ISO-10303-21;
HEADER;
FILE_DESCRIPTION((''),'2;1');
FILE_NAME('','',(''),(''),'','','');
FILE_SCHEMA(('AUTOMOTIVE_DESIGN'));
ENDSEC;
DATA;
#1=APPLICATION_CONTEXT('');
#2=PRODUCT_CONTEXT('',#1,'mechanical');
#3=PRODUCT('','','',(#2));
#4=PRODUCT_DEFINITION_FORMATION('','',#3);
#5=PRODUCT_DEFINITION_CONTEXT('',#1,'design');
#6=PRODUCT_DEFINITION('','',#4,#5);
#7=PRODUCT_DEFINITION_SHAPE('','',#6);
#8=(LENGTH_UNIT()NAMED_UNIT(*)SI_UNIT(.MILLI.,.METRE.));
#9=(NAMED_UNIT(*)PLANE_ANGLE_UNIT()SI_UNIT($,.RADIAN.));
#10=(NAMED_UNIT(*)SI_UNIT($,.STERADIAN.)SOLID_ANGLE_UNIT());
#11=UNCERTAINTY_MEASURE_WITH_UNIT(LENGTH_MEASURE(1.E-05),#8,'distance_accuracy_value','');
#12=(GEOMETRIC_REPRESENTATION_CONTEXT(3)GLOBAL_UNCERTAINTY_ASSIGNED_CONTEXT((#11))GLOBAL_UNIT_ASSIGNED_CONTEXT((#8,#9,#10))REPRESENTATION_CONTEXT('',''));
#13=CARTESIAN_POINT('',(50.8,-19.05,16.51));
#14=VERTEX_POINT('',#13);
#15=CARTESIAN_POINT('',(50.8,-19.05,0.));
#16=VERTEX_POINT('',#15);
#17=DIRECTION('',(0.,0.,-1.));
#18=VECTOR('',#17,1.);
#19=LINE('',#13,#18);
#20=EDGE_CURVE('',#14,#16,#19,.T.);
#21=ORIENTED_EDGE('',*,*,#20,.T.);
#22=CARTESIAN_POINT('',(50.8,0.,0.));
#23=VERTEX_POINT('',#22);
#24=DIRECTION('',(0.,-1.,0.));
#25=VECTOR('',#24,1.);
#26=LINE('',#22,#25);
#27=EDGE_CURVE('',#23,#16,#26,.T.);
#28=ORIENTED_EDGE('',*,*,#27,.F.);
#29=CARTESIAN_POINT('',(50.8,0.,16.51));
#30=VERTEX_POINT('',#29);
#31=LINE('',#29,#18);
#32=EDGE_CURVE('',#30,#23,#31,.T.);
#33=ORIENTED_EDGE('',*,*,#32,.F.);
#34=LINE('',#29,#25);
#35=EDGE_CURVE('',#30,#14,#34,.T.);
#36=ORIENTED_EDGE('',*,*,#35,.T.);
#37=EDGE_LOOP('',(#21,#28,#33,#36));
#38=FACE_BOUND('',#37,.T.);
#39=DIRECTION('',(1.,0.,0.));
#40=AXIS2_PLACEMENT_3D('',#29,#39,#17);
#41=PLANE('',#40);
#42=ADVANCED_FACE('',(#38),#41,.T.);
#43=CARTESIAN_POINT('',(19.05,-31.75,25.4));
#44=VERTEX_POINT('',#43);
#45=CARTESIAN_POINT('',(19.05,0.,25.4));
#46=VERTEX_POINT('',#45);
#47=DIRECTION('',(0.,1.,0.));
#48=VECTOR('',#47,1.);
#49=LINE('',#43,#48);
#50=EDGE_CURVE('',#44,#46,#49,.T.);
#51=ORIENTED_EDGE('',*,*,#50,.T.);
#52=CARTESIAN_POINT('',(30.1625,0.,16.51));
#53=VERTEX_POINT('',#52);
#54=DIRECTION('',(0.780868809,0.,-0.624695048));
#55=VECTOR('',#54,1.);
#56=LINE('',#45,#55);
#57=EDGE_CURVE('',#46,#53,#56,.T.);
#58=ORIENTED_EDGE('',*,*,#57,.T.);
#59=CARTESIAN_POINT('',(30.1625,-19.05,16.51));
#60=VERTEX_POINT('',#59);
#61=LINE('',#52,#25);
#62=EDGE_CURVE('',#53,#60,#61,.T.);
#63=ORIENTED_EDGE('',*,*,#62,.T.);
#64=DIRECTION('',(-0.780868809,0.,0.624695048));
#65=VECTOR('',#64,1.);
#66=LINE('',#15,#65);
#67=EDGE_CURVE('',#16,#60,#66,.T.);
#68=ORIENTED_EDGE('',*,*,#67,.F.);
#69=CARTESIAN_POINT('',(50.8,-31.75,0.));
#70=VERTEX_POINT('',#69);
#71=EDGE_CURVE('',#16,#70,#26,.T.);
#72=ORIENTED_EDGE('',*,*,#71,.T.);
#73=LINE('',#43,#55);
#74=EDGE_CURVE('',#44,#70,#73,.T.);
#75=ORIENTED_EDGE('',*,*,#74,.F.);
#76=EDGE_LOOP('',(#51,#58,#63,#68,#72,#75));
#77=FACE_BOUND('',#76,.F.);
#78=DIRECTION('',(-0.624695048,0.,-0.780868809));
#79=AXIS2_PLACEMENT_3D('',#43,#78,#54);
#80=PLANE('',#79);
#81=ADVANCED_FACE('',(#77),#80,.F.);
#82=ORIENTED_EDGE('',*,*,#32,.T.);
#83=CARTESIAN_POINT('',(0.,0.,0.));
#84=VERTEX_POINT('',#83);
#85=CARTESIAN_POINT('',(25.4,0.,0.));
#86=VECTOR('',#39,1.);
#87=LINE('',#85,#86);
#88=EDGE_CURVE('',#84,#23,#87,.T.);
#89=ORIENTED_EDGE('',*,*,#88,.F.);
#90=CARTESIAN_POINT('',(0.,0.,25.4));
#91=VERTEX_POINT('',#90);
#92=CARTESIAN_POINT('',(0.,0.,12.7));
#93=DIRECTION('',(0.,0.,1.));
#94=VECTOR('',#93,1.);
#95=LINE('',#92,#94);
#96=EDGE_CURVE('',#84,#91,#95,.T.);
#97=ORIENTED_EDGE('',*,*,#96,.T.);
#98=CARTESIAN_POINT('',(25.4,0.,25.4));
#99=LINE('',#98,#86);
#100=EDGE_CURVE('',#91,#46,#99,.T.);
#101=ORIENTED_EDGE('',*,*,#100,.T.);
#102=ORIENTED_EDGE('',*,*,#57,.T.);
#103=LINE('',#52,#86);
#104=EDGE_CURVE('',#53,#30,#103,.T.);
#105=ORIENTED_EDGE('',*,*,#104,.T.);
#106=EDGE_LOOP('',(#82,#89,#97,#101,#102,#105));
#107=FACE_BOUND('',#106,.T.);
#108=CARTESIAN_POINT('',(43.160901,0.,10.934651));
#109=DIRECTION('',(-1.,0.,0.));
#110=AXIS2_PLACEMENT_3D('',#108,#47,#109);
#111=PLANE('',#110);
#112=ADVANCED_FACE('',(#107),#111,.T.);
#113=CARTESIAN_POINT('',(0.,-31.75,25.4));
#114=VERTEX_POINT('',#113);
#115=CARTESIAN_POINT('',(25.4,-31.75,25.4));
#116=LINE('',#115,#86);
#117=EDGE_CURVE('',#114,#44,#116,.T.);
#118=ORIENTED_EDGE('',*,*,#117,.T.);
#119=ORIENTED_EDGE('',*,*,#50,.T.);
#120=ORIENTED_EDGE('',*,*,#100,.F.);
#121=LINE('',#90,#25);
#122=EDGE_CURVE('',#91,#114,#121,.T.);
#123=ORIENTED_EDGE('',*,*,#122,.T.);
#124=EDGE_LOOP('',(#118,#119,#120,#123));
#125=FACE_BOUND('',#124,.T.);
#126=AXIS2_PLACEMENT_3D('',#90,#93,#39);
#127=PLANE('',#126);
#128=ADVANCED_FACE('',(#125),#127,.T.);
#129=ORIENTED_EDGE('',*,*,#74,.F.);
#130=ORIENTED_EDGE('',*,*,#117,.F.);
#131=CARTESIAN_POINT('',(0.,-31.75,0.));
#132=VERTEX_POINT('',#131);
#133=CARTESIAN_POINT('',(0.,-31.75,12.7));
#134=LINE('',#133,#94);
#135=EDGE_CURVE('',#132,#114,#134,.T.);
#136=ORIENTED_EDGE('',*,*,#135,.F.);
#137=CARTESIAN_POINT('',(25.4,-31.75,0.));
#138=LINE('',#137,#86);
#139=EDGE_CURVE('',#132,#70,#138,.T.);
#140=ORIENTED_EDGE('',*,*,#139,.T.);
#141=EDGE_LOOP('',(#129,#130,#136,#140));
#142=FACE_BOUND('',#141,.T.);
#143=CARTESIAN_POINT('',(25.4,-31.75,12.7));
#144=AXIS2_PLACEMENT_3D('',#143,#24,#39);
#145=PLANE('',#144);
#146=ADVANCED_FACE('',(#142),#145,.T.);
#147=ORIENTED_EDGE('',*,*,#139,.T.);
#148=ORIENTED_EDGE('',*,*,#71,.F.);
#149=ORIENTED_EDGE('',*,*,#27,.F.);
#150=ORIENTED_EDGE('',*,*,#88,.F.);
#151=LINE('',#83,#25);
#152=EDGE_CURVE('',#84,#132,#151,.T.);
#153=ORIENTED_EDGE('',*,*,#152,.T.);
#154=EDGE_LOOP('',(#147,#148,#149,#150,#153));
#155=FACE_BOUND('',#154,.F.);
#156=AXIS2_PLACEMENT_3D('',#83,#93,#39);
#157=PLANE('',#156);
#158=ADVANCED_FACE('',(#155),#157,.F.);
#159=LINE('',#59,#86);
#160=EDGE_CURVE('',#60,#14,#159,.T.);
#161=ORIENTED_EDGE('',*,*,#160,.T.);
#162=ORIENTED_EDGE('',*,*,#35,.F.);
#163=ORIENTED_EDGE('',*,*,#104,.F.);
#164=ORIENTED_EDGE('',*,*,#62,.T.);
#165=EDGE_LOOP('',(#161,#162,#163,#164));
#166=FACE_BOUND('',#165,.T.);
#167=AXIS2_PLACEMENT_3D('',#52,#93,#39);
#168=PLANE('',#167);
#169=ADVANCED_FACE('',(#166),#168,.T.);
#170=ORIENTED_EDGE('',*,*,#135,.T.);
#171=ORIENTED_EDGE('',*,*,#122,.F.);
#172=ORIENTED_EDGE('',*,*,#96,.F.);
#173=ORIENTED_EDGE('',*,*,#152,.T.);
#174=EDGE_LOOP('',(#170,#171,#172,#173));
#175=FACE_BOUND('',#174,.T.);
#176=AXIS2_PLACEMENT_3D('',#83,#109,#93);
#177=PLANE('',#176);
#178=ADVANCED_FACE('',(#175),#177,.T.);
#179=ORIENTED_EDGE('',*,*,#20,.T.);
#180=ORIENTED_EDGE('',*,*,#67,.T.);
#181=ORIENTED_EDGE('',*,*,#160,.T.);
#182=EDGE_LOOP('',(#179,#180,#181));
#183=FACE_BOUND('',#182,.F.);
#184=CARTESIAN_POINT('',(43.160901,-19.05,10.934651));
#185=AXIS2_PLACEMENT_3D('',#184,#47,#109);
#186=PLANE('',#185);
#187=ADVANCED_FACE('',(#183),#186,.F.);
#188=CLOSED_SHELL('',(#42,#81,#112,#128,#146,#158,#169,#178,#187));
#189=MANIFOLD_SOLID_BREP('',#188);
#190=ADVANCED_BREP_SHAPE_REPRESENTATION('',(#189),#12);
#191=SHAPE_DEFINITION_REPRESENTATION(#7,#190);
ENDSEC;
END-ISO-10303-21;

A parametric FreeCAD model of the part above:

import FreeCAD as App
import Part
import Sketcher
from FreeCAD import Vector
Q = App.Units.Quantity

doc = App.newDocument("Part")
body = doc.addObject("PartDesign::Body", "Body")

sketch1 = body.newObject("Sketcher::SketchObject", "Sketch")
sketch1.AttachmentSupport = (doc.getObject("XZ_Plane"), [""])
sketch1.MapMode = "FlatFace"
sketch1.addGeometry([
    Part.LineSegment(Vector(0, 25.4, 0), Vector(0, 0, 0)),
    Part.LineSegment(Vector(0, 0, 0), Vector(50.8, 0, 0)),
    Part.LineSegment(Vector(50.8, 0, 0), Vector(50.8, 25.4, 0)),
    Part.LineSegment(Vector(50.8, 25.4, 0), Vector(0, 25.4, 0)),
], False)
sketch1.addConstraint([
    Sketcher.Constraint("Coincident", 0, 2, 1, 1),
    Sketcher.Constraint("Coincident", 1, 2, 2, 1),
    Sketcher.Constraint("Coincident", 2, 2, 3, 1),
    Sketcher.Constraint("Coincident", 3, 2, 0, 1),
    Sketcher.Constraint("Vertical", 0),
    Sketcher.Constraint("Horizontal", 1),
    Sketcher.Constraint("Vertical", 2),
    Sketcher.Constraint("Horizontal", 3),
    Sketcher.Constraint("Coincident", 0, 2, -1, 1),
    Sketcher.Constraint("DistanceX", 1, 1, 1, 2, Q("2 in")),
    Sketcher.Constraint("DistanceY", 0, 2, 0, 1, Q("1 in")),
])
pad1 = body.newObject("PartDesign::Pad", "Pad")
pad1.Profile = sketch1
pad1.Length = Q("1.25 in")

sketch2 = body.newObject("Sketcher::SketchObject", "Sketch001")
sketch2.AttachmentSupport = (doc.getObject("XZ_Plane"), [""])
sketch2.MapMode = "FlatFace"
sketch2.AttachmentOffset = App.Placement(Vector(0, 0, 1.25 * 25.4), App.Rotation())
sketch2.addGeometry([
    Part.LineSegment(Vector(50.8, 25.4, 0), Vector(19.05, 25.4, 0)),
    Part.LineSegment(Vector(19.05, 25.4, 0), Vector(50.8, 0, 0)),
    Part.LineSegment(Vector(50.8, 0, 0), Vector(50.8, 25.4, 0)),
], False)
sketch2.addConstraint([
    Sketcher.Constraint("Coincident", 0, 2, 1, 1),
    Sketcher.Constraint("Coincident", 1, 2, 2, 1),
    Sketcher.Constraint("Coincident", 2, 2, 0, 1),
    Sketcher.Constraint("Horizontal", 0),
    Sketcher.Constraint("Vertical", 2),
    Sketcher.Constraint("PointOnObject", 1, 2, -1),
    Sketcher.Constraint("DistanceY", 2, 1, 2, 2, Q("1 in")),
    Sketcher.Constraint("DistanceX", -1, 1, 1, 2, Q("2 in")),
    Sketcher.Constraint("DistanceX", 0, 2, 0, 1, Q("1.25 in")),
])
pocket1 = body.newObject("PartDesign::Pocket", "Pocket")
pocket1.Profile = sketch2
pocket1.Length = Q("1.25 in")

sketch3 = body.newObject("Sketcher::SketchObject", "Sketch002")
sketch3.AttachmentSupport = (doc.getObject("XZ_Plane"), [""])
sketch3.MapMode = "FlatFace"
sketch3.addGeometry([
    Part.LineSegment(Vector(50.8, 16.51, 0), Vector(50.8, 0, 0)),
    Part.LineSegment(Vector(50.8, 0, 0), Vector(30.1625, 16.51, 0)),
    Part.LineSegment(Vector(30.1625, 16.51, 0), Vector(50.8, 16.51, 0)),
], False)
sketch3.addConstraint([
    Sketcher.Constraint("Coincident", 0, 2, 1, 1),
    Sketcher.Constraint("Coincident", 1, 2, 2, 1),
    Sketcher.Constraint("Coincident", 2, 2, 0, 1),
    Sketcher.Constraint("Vertical", 0),
    Sketcher.Constraint("Horizontal", 2),
    Sketcher.Constraint("PointOnObject", 0, 2, -1),
    Sketcher.Constraint("DistanceX", -1, 1, 0, 2, Q("2 in")),
    Sketcher.Constraint("DistanceY", 0, 2, 0, 1, Q("0.65 in")),
    Sketcher.Constraint("DistanceX", 2, 1, 2, 2, Q("0.8125 in")),
])
pad2 = body.newObject("PartDesign::Pad", "Pad001")
pad2.Profile = sketch3
pad2.Length = Q("0.75 in")

doc.recompute()
